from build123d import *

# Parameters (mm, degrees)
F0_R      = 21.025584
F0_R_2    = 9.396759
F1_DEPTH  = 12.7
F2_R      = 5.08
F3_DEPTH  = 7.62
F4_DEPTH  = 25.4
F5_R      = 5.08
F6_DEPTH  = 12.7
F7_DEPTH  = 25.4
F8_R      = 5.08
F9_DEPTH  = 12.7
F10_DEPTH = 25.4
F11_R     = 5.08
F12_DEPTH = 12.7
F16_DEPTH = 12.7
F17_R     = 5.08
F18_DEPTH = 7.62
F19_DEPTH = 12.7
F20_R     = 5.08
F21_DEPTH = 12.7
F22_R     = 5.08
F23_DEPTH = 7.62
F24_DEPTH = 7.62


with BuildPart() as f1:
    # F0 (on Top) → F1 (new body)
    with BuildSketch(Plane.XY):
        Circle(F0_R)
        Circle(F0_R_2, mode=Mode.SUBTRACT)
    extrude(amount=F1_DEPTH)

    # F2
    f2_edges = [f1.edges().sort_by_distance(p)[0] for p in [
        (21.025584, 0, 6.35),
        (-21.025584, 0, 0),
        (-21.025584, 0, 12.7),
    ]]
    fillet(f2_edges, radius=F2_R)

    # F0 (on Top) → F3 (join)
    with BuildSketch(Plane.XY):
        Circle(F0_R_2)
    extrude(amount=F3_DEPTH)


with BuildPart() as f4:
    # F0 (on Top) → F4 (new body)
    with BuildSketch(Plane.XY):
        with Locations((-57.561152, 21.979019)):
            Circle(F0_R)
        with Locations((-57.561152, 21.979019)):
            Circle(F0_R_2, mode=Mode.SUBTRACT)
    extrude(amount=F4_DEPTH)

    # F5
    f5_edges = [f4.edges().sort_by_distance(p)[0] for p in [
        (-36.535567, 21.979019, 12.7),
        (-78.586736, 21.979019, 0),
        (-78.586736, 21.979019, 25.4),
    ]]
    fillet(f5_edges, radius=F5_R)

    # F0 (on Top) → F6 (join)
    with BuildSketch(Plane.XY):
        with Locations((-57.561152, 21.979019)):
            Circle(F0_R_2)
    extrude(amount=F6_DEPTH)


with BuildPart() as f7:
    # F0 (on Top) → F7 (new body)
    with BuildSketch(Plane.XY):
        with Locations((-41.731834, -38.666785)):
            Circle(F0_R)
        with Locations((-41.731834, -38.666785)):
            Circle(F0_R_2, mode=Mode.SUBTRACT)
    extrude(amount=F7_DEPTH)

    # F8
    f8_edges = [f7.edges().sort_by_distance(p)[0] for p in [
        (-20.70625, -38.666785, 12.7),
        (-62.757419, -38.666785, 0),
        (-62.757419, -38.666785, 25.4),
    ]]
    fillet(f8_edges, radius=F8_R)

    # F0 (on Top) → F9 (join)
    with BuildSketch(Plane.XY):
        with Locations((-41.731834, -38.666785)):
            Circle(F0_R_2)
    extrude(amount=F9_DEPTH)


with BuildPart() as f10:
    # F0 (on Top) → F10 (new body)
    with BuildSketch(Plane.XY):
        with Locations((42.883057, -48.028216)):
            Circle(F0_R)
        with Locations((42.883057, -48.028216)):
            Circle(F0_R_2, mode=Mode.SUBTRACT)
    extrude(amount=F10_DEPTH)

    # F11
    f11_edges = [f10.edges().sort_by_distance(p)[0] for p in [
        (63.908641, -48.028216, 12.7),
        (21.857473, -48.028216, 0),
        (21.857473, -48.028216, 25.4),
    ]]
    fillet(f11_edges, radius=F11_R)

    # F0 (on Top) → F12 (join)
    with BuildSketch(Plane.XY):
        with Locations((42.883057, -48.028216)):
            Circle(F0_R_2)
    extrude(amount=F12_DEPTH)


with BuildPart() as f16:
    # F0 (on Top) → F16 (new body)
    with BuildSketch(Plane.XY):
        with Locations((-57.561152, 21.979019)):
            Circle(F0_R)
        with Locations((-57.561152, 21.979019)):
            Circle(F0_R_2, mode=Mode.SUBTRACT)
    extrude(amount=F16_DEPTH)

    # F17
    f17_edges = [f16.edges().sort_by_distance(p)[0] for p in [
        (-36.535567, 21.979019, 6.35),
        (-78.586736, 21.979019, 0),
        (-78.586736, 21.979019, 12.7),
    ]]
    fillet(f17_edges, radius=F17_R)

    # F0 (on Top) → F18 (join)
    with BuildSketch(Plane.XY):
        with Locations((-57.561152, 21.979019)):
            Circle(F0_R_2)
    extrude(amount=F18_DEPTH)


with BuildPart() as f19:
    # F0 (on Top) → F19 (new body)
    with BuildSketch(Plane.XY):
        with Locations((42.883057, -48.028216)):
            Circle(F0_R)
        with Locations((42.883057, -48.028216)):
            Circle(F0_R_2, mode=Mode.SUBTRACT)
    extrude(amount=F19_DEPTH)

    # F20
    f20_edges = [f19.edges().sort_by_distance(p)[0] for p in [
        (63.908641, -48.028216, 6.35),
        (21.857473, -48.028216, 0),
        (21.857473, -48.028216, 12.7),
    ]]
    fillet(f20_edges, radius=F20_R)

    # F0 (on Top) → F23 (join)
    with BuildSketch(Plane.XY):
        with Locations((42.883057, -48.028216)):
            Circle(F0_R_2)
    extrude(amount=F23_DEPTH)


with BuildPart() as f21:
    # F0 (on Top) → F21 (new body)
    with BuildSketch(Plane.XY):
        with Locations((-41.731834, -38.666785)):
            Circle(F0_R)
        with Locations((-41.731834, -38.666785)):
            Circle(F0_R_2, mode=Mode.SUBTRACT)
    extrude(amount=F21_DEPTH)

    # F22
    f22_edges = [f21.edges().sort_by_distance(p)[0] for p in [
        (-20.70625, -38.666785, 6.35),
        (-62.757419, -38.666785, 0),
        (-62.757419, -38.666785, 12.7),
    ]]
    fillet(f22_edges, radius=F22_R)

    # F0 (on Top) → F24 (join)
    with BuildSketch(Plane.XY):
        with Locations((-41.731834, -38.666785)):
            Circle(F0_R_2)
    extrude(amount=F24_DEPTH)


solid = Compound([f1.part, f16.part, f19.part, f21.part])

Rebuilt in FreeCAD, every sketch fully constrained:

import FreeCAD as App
import Part
import Sketcher
Q = App.Units.Quantity


def edges_at(feature, points):
    """Names of the edges that pass closest to the given points."""
    edges = feature.Shape.Edges
    near = lambda p: min(range(len(edges)), key=lambda i: edges[i].distToShape(Part.Vertex(*p))[0])
    return sorted({f"Edge{near(p) + 1}" for p in points})

doc = App.newDocument("Part")
body = doc.addObject("PartDesign::Body", "Body")

sketch1 = body.newObject("Sketcher::SketchObject", "Sketch")
sketch1.AttachmentSupport = (doc.getObject("XY_Plane"), [""])
sketch1.MapMode = "FlatFace"
sketch1.addGeometry(Part.Circle(App.Vector(0, 0, 0), App.Vector(0, 0, 1), 21.025584), False)
sketch1.addGeometry(Part.Circle(App.Vector(0, 0, 0), App.Vector(0, 0, 1), 9.396759), False)
sketch1.addConstraint(Sketcher.Constraint("Coincident", 0, 3, -1, 1))
sketch1.addConstraint(Sketcher.Constraint("Coincident", 1, 3, -1, 1))
sketch1.addConstraint(Sketcher.Constraint("Diameter", 0, 42.051168))
sketch1.addConstraint(Sketcher.Constraint("Diameter", 1, 18.793518))
pad1 = body.newObject("PartDesign::Pad", "Pad")
pad1.Profile = sketch1
pad1.Length = Q("0.5 in")
doc.recompute()

fillet = body.newObject("PartDesign::Fillet", "Fillet")
fillet.Base = (pad1, edges_at(pad1, [(21.026, 0, 6.35), (-21.026, 0, 0), (-21.026, 0, 12.7)]))
fillet.Radius = Q("0.2 in")

sketch2 = body.newObject("Sketcher::SketchObject", "Sketch001")
sketch2.AttachmentSupport = (doc.getObject("XY_Plane"), [""])
sketch2.MapMode = "FlatFace"
sketch2.addGeometry(Part.Circle(App.Vector(0, 0, 0), App.Vector(0, 0, 1), 9.396759), False)
sketch2.addConstraint(Sketcher.Constraint("Coincident", 0, 3, -1, 1))
sketch2.addConstraint(Sketcher.Constraint("Diameter", 0, 18.793518))
pad2 = body.newObject("PartDesign::Pad", "Pad001")
pad2.Profile = sketch2
pad2.Length = Q("0.3 in")
body2 = doc.addObject("PartDesign::Body", "Body001")

sketch3 = body2.newObject("Sketcher::SketchObject", "Sketch002")
sketch3.AttachmentSupport = (doc.getObject("XY_Plane001"), [""])
sketch3.MapMode = "FlatFace"
sketch3.addGeometry(Part.Circle(App.Vector(-57.561152, 21.979019, 0), App.Vector(0, 0, 1), 21.025584), False)
sketch3.addGeometry(Part.Circle(App.Vector(-57.561152, 21.979019, 0), App.Vector(0, 0, 1), 9.396759), False)
sketch3.addConstraint(Sketcher.Constraint("Coincident", 1, 3, 0, 3))
sketch3.addConstraint(Sketcher.Constraint("Diameter", 0, 42.051168))
sketch3.addConstraint(Sketcher.Constraint("Diameter", 1, 18.793518))
sketch3.addConstraint(Sketcher.Constraint("DistanceY", -1, 1, 0, 3, 21.979019))
sketch3.addConstraint(Sketcher.Constraint("DistanceX", 0, 3, -1, 1, 57.561152))
pad3 = body2.newObject("PartDesign::Pad", "Pad002")
pad3.Profile = sketch3
pad3.Length = Q("1 in")
doc.recompute()

fillet2 = body2.newObject("PartDesign::Fillet", "Fillet001")
fillet2.Base = (pad3, edges_at(pad3, [(-36.536, 21.979, 12.7), (-78.587, 21.979, 0), (-78.587, 21.979, 25.4)]))
fillet2.Radius = Q("0.2 in")

sketch4 = body2.newObject("Sketcher::SketchObject", "Sketch003")
sketch4.AttachmentSupport = (doc.getObject("XY_Plane001"), [""])
sketch4.MapMode = "FlatFace"
sketch4.addGeometry(Part.Circle(App.Vector(-57.561152, 21.979019, 0), App.Vector(0, 0, 1), 9.396759), False)
sketch4.addConstraint(Sketcher.Constraint("Diameter", 0, 18.793518))
sketch4.addConstraint(Sketcher.Constraint("DistanceY", -1, 1, 0, 3, 21.979019))
sketch4.addConstraint(Sketcher.Constraint("DistanceX", 0, 3, -1, 1, 57.561152))
pad4 = body2.newObject("PartDesign::Pad", "Pad003")
pad4.Profile = sketch4
pad4.Length = Q("0.5 in")
body3 = doc.addObject("PartDesign::Body", "Body002")

sketch5 = body3.newObject("Sketcher::SketchObject", "Sketch004")
sketch5.AttachmentSupport = (doc.getObject("XY_Plane002"), [""])
sketch5.MapMode = "FlatFace"
sketch5.addGeometry(Part.Circle(App.Vector(-41.731834, -38.666785, 0), App.Vector(0, 0, 1), 21.025584), False)
sketch5.addGeometry(Part.Circle(App.Vector(-41.731834, -38.666785, 0), App.Vector(0, 0, 1), 9.396759), False)
sketch5.addConstraint(Sketcher.Constraint("Coincident", 1, 3, 0, 3))
sketch5.addConstraint(Sketcher.Constraint("Diameter", 0, 42.051168))
sketch5.addConstraint(Sketcher.Constraint("Diameter", 1, 18.793518))
sketch5.addConstraint(Sketcher.Constraint("DistanceX", 0, 3, -1, 1, 41.731834))
sketch5.addConstraint(Sketcher.Constraint("DistanceY", 0, 3, -1, 1, 38.666785))
pad5 = body3.newObject("PartDesign::Pad", "Pad004")
pad5.Profile = sketch5
pad5.Length = Q("1 in")
doc.recompute()

fillet3 = body3.newObject("PartDesign::Fillet", "Fillet002")
fillet3.Base = (pad5, edges_at(pad5, [(-20.706, -38.667, 12.7), (-62.757, -38.667, 0), (-62.757, -38.667, 25.4)]))
fillet3.Radius = Q("0.2 in")

sketch6 = body3.newObject("Sketcher::SketchObject", "Sketch005")
sketch6.AttachmentSupport = (doc.getObject("XY_Plane002"), [""])
sketch6.MapMode = "FlatFace"
sketch6.addGeometry(Part.Circle(App.Vector(-41.731834, -38.666785, 0), App.Vector(0, 0, 1), 9.396759), False)
sketch6.addConstraint(Sketcher.Constraint("Diameter", 0, 18.793518))
sketch6.addConstraint(Sketcher.Constraint("DistanceX", 0, 3, -1, 1, 41.731834))
sketch6.addConstraint(Sketcher.Constraint("DistanceY", 0, 3, -1, 1, 38.666785))
pad6 = body3.newObject("PartDesign::Pad", "Pad005")
pad6.Profile = sketch6
pad6.Length = Q("0.5 in")
body4 = doc.addObject("PartDesign::Body", "Body003")

sketch7 = body4.newObject("Sketcher::SketchObject", "Sketch006")
sketch7.AttachmentSupport = (doc.getObject("XY_Plane003"), [""])
sketch7.MapMode = "FlatFace"
sketch7.addGeometry(Part.Circle(App.Vector(42.883057, -48.028216, 0), App.Vector(0, 0, 1), 21.025584), False)
sketch7.addGeometry(Part.Circle(App.Vector(42.883057, -48.028216, 0), App.Vector(0, 0, 1), 9.396759), False)
sketch7.addConstraint(Sketcher.Constraint("Coincident", 1, 3, 0, 3))
sketch7.addConstraint(Sketcher.Constraint("Diameter", 0, 42.051168))
sketch7.addConstraint(Sketcher.Constraint("Diameter", 1, 18.793518))
sketch7.addConstraint(Sketcher.Constraint("DistanceX", -1, 1, 0, 3, 42.883057))
sketch7.addConstraint(Sketcher.Constraint("DistanceY", 0, 3, -1, 1, 48.028216))
pad7 = body4.newObject("PartDesign::Pad", "Pad006")
pad7.Profile = sketch7
pad7.Length = Q("1 in")
doc.recompute()

fillet4 = body4.newObject("PartDesign::Fillet", "Fillet003")
fillet4.Base = (pad7, edges_at(pad7, [(63.909, -48.028, 12.7), (21.857, -48.028, 0), (21.857, -48.028, 25.4)]))
fillet4.Radius = Q("0.2 in")

sketch8 = body4.newObject("Sketcher::SketchObject", "Sketch007")
sketch8.AttachmentSupport = (doc.getObject("XY_Plane003"), [""])
sketch8.MapMode = "FlatFace"
sketch8.addGeometry(Part.Circle(App.Vector(42.883057, -48.028216, 0), App.Vector(0, 0, 1), 9.396759), False)
sketch8.addConstraint(Sketcher.Constraint("Diameter", 0, 18.793518))
sketch8.addConstraint(Sketcher.Constraint("DistanceX", -1, 1, 0, 3, 42.883057))
sketch8.addConstraint(Sketcher.Constraint("DistanceY", 0, 3, -1, 1, 48.028216))
pad8 = body4.newObject("PartDesign::Pad", "Pad007")
pad8.Profile = sketch8
pad8.Length = Q("0.5 in")
body5 = doc.addObject("PartDesign::Body", "Body004")

sketch9 = body5.newObject("Sketcher::SketchObject", "Sketch008")
sketch9.AttachmentSupport = (doc.getObject("XY_Plane004"), [""])
sketch9.MapMode = "FlatFace"
sketch9.addGeometry(Part.Circle(App.Vector(-57.561152, 21.979019, 0), App.Vector(0, 0, 1), 21.025584), False)
sketch9.addGeometry(Part.Circle(App.Vector(-57.561152, 21.979019, 0), App.Vector(0, 0, 1), 9.396759), False)
sketch9.addConstraint(Sketcher.Constraint("Coincident", 1, 3, 0, 3))
sketch9.addConstraint(Sketcher.Constraint("Diameter", 0, 42.051168))
sketch9.addConstraint(Sketcher.Constraint("Diameter", 1, 18.793518))
sketch9.addConstraint(Sketcher.Constraint("DistanceY", -1, 1, 0, 3, 21.979019))
sketch9.addConstraint(Sketcher.Constraint("DistanceX", 0, 3, -1, 1, 57.561152))
pad9 = body5.newObject("PartDesign::Pad", "Pad008")
pad9.Profile = sketch9
pad9.Length = Q("0.5 in")
doc.recompute()

fillet5 = body5.newObject("PartDesign::Fillet", "Fillet004")
fillet5.Base = (pad9, edges_at(pad9, [(-36.536, 21.979, 6.35), (-78.587, 21.979, 0), (-78.587, 21.979, 12.7)]))
fillet5.Radius = Q("0.2 in")

sketch10 = body5.newObject("Sketcher::SketchObject", "Sketch009")
sketch10.AttachmentSupport = (doc.getObject("XY_Plane004"), [""])
sketch10.MapMode = "FlatFace"
sketch10.addGeometry(Part.Circle(App.Vector(-57.561152, 21.979019, 0), App.Vector(0, 0, 1), 9.396759), False)
sketch10.addConstraint(Sketcher.Constraint("Diameter", 0, 18.793518))
sketch10.addConstraint(Sketcher.Constraint("DistanceY", -1, 1, 0, 3, 21.979019))
sketch10.addConstraint(Sketcher.Constraint("DistanceX", 0, 3, -1, 1, 57.561152))
pad10 = body5.newObject("PartDesign::Pad", "Pad009")
pad10.Profile = sketch10
pad10.Length = Q("0.3 in")
body6 = doc.addObject("PartDesign::Body", "Body005")

sketch11 = body6.newObject("Sketcher::SketchObject", "Sketch010")
sketch11.AttachmentSupport = (doc.getObject("XY_Plane005"), [""])
sketch11.MapMode = "FlatFace"
sketch11.addGeometry(Part.Circle(App.Vector(42.883057, -48.028216, 0), App.Vector(0, 0, 1), 21.025584), False)
sketch11.addGeometry(Part.Circle(App.Vector(42.883057, -48.028216, 0), App.Vector(0, 0, 1), 9.396759), False)
sketch11.addConstraint(Sketcher.Constraint("Coincident", 1, 3, 0, 3))
sketch11.addConstraint(Sketcher.Constraint("Diameter", 0, 42.051168))
sketch11.addConstraint(Sketcher.Constraint("Diameter", 1, 18.793518))
sketch11.addConstraint(Sketcher.Constraint("DistanceX", -1, 1, 0, 3, 42.883057))
sketch11.addConstraint(Sketcher.Constraint("DistanceY", 0, 3, -1, 1, 48.028216))
pad11 = body6.newObject("PartDesign::Pad", "Pad010")
pad11.Profile = sketch11
pad11.Length = Q("0.5 in")
doc.recompute()

fillet6 = body6.newObject("PartDesign::Fillet", "Fillet005")
fillet6.Base = (pad11, edges_at(pad11, [(63.909, -48.028, 6.35), (21.857, -48.028, 0), (21.857, -48.028, 12.7)]))
fillet6.Radius = Q("0.2 in")

sketch12 = body6.newObject("Sketcher::SketchObject", "Sketch011")
sketch12.AttachmentSupport = (doc.getObject("XY_Plane005"), [""])
sketch12.MapMode = "FlatFace"
sketch12.addGeometry(Part.Circle(App.Vector(42.883057, -48.028216, 0), App.Vector(0, 0, 1), 9.396759), False)
sketch12.addConstraint(Sketcher.Constraint("Diameter", 0, 18.793518))
sketch12.addConstraint(Sketcher.Constraint("DistanceX", -1, 1, 0, 3, 42.883057))
sketch12.addConstraint(Sketcher.Constraint("DistanceY", 0, 3, -1, 1, 48.028216))
pad12 = body6.newObject("PartDesign::Pad", "Pad011")
pad12.Profile = sketch12
pad12.Length = Q("0.3 in")
body7 = doc.addObject("PartDesign::Body", "Body006")

sketch13 = body7.newObject("Sketcher::SketchObject", "Sketch012")
sketch13.AttachmentSupport = (doc.getObject("XY_Plane006"), [""])
sketch13.MapMode = "FlatFace"
sketch13.addGeometry(Part.Circle(App.Vector(-41.731834, -38.666785, 0), App.Vector(0, 0, 1), 21.025584), False)
sketch13.addGeometry(Part.Circle(App.Vector(-41.731834, -38.666785, 0), App.Vector(0, 0, 1), 9.396759), False)
sketch13.addConstraint(Sketcher.Constraint("Coincident", 1, 3, 0, 3))
sketch13.addConstraint(Sketcher.Constraint("Diameter", 0, 42.051168))
sketch13.addConstraint(Sketcher.Constraint("Diameter", 1, 18.793518))
sketch13.addConstraint(Sketcher.Constraint("DistanceX", 0, 3, -1, 1, 41.731834))
sketch13.addConstraint(Sketcher.Constraint("DistanceY", 0, 3, -1, 1, 38.666785))
pad13 = body7.newObject("PartDesign::Pad", "Pad012")
pad13.Profile = sketch13
pad13.Length = Q("0.5 in")
doc.recompute()

fillet7 = body7.newObject("PartDesign::Fillet", "Fillet006")
fillet7.Base = (pad13, edges_at(pad13, [(-20.706, -38.667, 6.35), (-62.757, -38.667, 0), (-62.757, -38.667, 12.7)]))
fillet7.Radius = Q("0.2 in")

sketch14 = body7.newObject("Sketcher::SketchObject", "Sketch013")
sketch14.AttachmentSupport = (doc.getObject("XY_Plane006"), [""])
sketch14.MapMode = "FlatFace"
sketch14.addGeometry(Part.Circle(App.Vector(-41.731834, -38.666785, 0), App.Vector(0, 0, 1), 9.396759), False)
sketch14.addConstraint(Sketcher.Constraint("Diameter", 0, 18.793518))
sketch14.addConstraint(Sketcher.Constraint("DistanceX", 0, 3, -1, 1, 41.731834))
sketch14.addConstraint(Sketcher.Constraint("DistanceY", 0, 3, -1, 1, 38.666785))
pad14 = body7.newObject("PartDesign::Pad", "Pad013")
pad14.Profile = sketch14
pad14.Length = Q("0.3 in")
body2.Visibility = False
body3.Visibility = False
body4.Visibility = False

doc.recompute()
